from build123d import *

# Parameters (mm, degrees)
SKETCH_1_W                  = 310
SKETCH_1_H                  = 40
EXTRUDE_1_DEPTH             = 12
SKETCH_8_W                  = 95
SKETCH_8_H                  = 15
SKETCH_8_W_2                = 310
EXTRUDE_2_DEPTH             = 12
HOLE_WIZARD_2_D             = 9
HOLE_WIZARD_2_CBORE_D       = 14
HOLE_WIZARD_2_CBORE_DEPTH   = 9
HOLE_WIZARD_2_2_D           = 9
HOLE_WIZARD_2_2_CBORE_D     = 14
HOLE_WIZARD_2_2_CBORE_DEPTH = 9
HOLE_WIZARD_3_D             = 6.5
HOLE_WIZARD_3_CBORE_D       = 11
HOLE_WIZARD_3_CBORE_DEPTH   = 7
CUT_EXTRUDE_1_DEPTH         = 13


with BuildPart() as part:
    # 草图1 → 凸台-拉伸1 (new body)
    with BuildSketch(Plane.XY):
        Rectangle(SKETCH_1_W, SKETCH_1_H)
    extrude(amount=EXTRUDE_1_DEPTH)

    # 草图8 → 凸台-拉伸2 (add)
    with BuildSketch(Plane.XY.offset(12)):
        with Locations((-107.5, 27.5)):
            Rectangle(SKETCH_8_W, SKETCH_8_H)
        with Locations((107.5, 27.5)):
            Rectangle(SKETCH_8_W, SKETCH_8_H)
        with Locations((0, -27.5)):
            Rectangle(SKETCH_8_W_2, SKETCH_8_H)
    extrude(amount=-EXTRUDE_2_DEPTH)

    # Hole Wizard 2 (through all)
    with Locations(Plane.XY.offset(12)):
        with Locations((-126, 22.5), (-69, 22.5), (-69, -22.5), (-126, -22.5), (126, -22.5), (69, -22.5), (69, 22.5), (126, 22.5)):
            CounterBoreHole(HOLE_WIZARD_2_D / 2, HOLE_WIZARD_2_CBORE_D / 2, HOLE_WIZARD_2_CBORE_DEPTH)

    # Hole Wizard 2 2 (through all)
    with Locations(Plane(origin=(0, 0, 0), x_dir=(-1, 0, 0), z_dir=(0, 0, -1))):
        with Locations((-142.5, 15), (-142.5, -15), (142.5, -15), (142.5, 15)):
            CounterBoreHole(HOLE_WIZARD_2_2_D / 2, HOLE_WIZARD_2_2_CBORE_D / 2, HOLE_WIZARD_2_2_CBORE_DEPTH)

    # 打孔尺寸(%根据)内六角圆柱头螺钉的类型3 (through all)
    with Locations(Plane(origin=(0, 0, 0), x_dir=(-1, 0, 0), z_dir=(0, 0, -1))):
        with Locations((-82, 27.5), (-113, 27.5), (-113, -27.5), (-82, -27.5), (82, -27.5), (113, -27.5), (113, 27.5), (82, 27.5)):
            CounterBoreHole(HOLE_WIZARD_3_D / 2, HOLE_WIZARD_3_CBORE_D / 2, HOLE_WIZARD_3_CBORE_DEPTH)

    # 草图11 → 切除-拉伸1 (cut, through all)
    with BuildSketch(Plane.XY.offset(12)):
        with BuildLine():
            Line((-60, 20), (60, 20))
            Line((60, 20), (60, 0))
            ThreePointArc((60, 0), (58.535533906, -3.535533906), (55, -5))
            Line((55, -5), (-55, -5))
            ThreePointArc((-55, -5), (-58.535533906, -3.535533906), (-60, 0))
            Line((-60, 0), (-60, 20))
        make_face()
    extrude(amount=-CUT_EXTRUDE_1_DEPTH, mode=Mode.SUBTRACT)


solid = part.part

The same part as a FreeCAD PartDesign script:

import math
import FreeCAD as App
import Part
import Sketcher
from FreeCAD import Vector
Q = App.Units.Quantity


def add_polygon(sketch, points):
    """Adds a closed chain of lines whose ends are joined by coincident constraints."""
    first, n = sketch.GeometryCount, len(points)
    for a, b in zip(points, points[1:] + points[:1]):
        sketch.addGeometry(Part.LineSegment(App.Vector(*a, 0), App.Vector(*b, 0)), False)
    for i in range(n):
        sketch.addConstraint(Sketcher.Constraint("Coincident", first + i, 2, first + (i + 1) % n, 1))

doc = App.newDocument("Part")
params = doc.addObject("Spreadsheet::Sheet", "Params")
for row, (alias, value) in enumerate([
    ("sketch1_width", "310 mm"),
    ("sketch1_height", "40 mm"),
    ("pad1_length", "12 mm"),
    ("sketch2_width", "95 mm"),
    ("sketch2_width2", "310 mm"),
    ("sketch2_height", "15 mm"),
    ("pad2_length", "12 mm"),
    ("sketch3_diameter", "9 mm"),
    ("hole_diameter", "9 mm"),
    ("hole_cbore_diameter", "14 mm"),
    ("hole_cbore_depth", "9 mm"),
    ("sketch4_diameter", "9 mm"),
    ("hole2_diameter", "9 mm"),
    ("hole2_cbore_diameter", "14 mm"),
    ("hole2_cbore_depth", "9 mm"),
    ("sketch5_diameter", "6.5 mm"),
    ("hole3_diameter", "6.5 mm"),
    ("hole3_cbore_diameter", "11 mm"),
    ("hole3_cbore_depth", "7 mm"),
    ("sketch6_radius", "5 mm"),
    ("sketch6_width", "120 mm"),
    ("sketch6_height", "20 mm"),
], start=1):
    params.set(f"A{row}", alias)
    params.set(f"B{row}", "=" + value)
    params.setAlias(f"B{row}", alias)

body = doc.addObject("PartDesign::Body", "Body")

# Sketch on XY plane
sketch1 = body.newObject("Sketcher::SketchObject", "Sketch")
sketch1.AttachmentSupport = (doc.getObject("XY_Plane"), [""])
sketch1.MapMode = "FlatFace"
add_polygon(sketch1, [(-155, 20), (-155, -20), (155, -20), (155, 20)])  # lines 0-3
sketch1.addConstraint(Sketcher.Constraint("Vertical", 0))
sketch1.addConstraint(Sketcher.Constraint("Horizontal", 1))
sketch1.addConstraint(Sketcher.Constraint("Vertical", 2))
sketch1.addConstraint(Sketcher.Constraint("Horizontal", 3))
sketch1.addConstraint(Sketcher.Constraint("Symmetric", 0, 2, 2, 2, -1, 1))
sketch1.addConstraint(Sketcher.Constraint("DistanceX", 1, 1, 1, 2, Q("310 mm")))
sketch1.addConstraint(Sketcher.Constraint("DistanceY", 0, 2, 0, 1, Q("40 mm")))
sketch1.setExpression("Constraints[9]", "Params.sketch1_width")
sketch1.setExpression("Constraints[10]", "Params.sketch1_height")
pad1 = body.newObject("PartDesign::Pad", "Pad")
pad1.Profile = sketch1
pad1.setExpression("Length", "Params.pad1_length")

# Sketch on XY plane
sketch2 = body.newObject("Sketcher::SketchObject", "Sketch001")
sketch2.AttachmentSupport = (doc.getObject("XY_Plane"), [""])
sketch2.MapMode = "FlatFace"
sketch2.AttachmentOffset = App.Placement(Vector(0, 0, 12), App.Rotation())
add_polygon(sketch2, [(-155, 35), (-155, 20), (-60, 20), (-60, 35)])  # lines 0-3
add_polygon(sketch2, [(60, 35), (60, 20), (155, 20), (155, 35)])  # lines 4-7
add_polygon(sketch2, [(-155, -20), (-155, -35), (155, -35), (155, -20)])  # lines 8-11
sketch2.addConstraint(Sketcher.Constraint("Vertical", 0))
sketch2.addConstraint(Sketcher.Constraint("Horizontal", 1))
sketch2.addConstraint(Sketcher.Constraint("Vertical", 2))
sketch2.addConstraint(Sketcher.Constraint("Horizontal", 3))
sketch2.addConstraint(Sketcher.Constraint("Vertical", 4))
sketch2.addConstraint(Sketcher.Constraint("Horizontal", 5))
sketch2.addConstraint(Sketcher.Constraint("Vertical", 6))
sketch2.addConstraint(Sketcher.Constraint("Horizontal", 7))
sketch2.addConstraint(Sketcher.Constraint("Vertical", 8))
sketch2.addConstraint(Sketcher.Constraint("Horizontal", 9))
sketch2.addConstraint(Sketcher.Constraint("Vertical", 10))
sketch2.addConstraint(Sketcher.Constraint("Horizontal", 11))
sketch2.addConstraint(Sketcher.Constraint("Symmetric", 6, 2, 8, 2, -1, 1))
sketch2.addConstraint(Sketcher.Constraint("Symmetric", 3, 2, 9, 2, -1, 1))
sketch2.addConstraint(Sketcher.Constraint("Symmetric", 1, 2, 4, 2, -2))
sketch2.addConstraint(Sketcher.Constraint("Symmetric", 5, 2, 10, 2, -1))
sketch2.addConstraint(Sketcher.Constraint("DistanceX", 1, 1, 1, 2, Q("95 mm")))
sketch2.addConstraint(Sketcher.Constraint("DistanceX", 9, 1, 9, 2, Q("310 mm")))
sketch2.addConstraint(Sketcher.Constraint("DistanceY", 0, 2, 0, 1, Q("15 mm")))
sketch2.addConstraint(Sketcher.Constraint("DistanceY", -1, 1, 0, 2, Q("20 mm")))
sketch2.setExpression("Constraints[28]", "Params.sketch2_width")
sketch2.setExpression("Constraints[29]", "Params.sketch2_width2")
sketch2.setExpression("Constraints[30]", "Params.sketch2_height")
pad2 = body.newObject("PartDesign::Pad", "Pad001")
pad2.Profile = sketch2
pad2.setExpression("Length", "Params.pad2_length")
pad2.Reversed = True

# Sketch on XY plane
sketch3 = body.newObject("Sketcher::SketchObject", "Sketch002")
sketch3.AttachmentSupport = (doc.getObject("XY_Plane"), [""])
sketch3.MapMode = "FlatFace"
sketch3.AttachmentOffset = App.Placement(Vector(0, 0, 12), App.Rotation())
sketch3.addGeometry(Part.Circle(Vector(-126, 22.5, 0), Vector(0, 0, 1), 4.5), False)
sketch3.addGeometry(Part.Circle(Vector(-69, 22.5, 0), Vector(0, 0, 1), 4.5), False)
sketch3.addGeometry(Part.Circle(Vector(-69, -22.5, 0), Vector(0, 0, 1), 4.5), False)
sketch3.addGeometry(Part.Circle(Vector(-126, -22.5, 0), Vector(0, 0, 1), 4.5), False)
sketch3.addGeometry(Part.Circle(Vector(126, -22.5, 0), Vector(0, 0, 1), 4.5), False)
sketch3.addGeometry(Part.Circle(Vector(69, -22.5, 0), Vector(0, 0, 1), 4.5), False)
sketch3.addGeometry(Part.Circle(Vector(69, 22.5, 0), Vector(0, 0, 1), 4.5), False)
sketch3.addGeometry(Part.Circle(Vector(126, 22.5, 0), Vector(0, 0, 1), 4.5), False)
sketch3.addConstraint(Sketcher.Constraint("Equal", 0, 1))
sketch3.addConstraint(Sketcher.Constraint("Equal", 1, 2))
sketch3.addConstraint(Sketcher.Constraint("Equal", 2, 3))
sketch3.addConstraint(Sketcher.Constraint("Equal", 3, 4))
sketch3.addConstraint(Sketcher.Constraint("Equal", 4, 5))
sketch3.addConstraint(Sketcher.Constraint("Equal", 5, 6))
sketch3.addConstraint(Sketcher.Constraint("Equal", 6, 7))
sketch3.addConstraint(Sketcher.Constraint("Symmetric", 0, 3, 4, 3, -1, 1))
sketch3.addConstraint(Sketcher.Constraint("Symmetric", 1, 3, 5, 3, -1, 1))
sketch3.addConstraint(Sketcher.Constraint("Symmetric", 2, 3, 6, 3, -1, 1))
sketch3.addConstraint(Sketcher.Constraint("Symmetric", 3, 3, 7, 3, -1, 1))
sketch3.addConstraint(Sketcher.Constraint("Symmetric", 3, 3, 4, 3, -2))
sketch3.addConstraint(Sketcher.Constraint("Symmetric", 2, 3, 5, 3, -2))
sketch3.addConstraint(Sketcher.Constraint("Horizontal", 0, 3, 1, 3))
sketch3.addConstraint(Sketcher.Constraint("Diameter", 0, Q("9 mm")))
sketch3.addConstraint(Sketcher.Constraint("DistanceX", 0, 3, -1, 1, Q("126 mm")))
sketch3.addConstraint(Sketcher.Constraint("DistanceX", 1, 3, -1, 1, Q("69 mm")))
sketch3.addConstraint(Sketcher.Constraint("DistanceY", 2, 3, 1, 3, Q("45 mm")))
sketch3.setExpression("Constraints[14]", "Params.sketch3_diameter")
doc.recompute()
hole = body.newObject("PartDesign::Hole", "Hole")
hole.Profile = sketch3
hole.ThreadType = "None"
hole.setExpression("Diameter", "Params.hole_diameter")
hole.DepthType = "ThroughAll"
hole.HoleCutType = "Counterbore"
hole.setExpression("HoleCutDiameter", "Params.hole_cbore_diameter")
hole.setExpression("HoleCutDepth", "Params.hole_cbore_depth")

# Sketch on XY plane
sketch4 = body.newObject("Sketcher::SketchObject", "Sketch003")
sketch4.AttachmentSupport = (doc.getObject("XY_Plane"), [""])
sketch4.MapMode = "FlatFace"
sketch4.addGeometry(Part.Circle(Vector(142.5, 15, 0), Vector(0, 0, 1), 4.5), False)
sketch4.addGeometry(Part.Circle(Vector(142.5, -15, 0), Vector(0, 0, 1), 4.5), False)
sketch4.addGeometry(Part.Circle(Vector(-142.5, -15, 0), Vector(0, 0, 1), 4.5), False)
sketch4.addGeometry(Part.Circle(Vector(-142.5, 15, 0), Vector(0, 0, 1), 4.5), False)
sketch4.addConstraint(Sketcher.Constraint("Equal", 0, 1))
sketch4.addConstraint(Sketcher.Constraint("Equal", 1, 2))
sketch4.addConstraint(Sketcher.Constraint("Equal", 2, 3))
sketch4.addConstraint(Sketcher.Constraint("Symmetric", 0, 3, 2, 3, -1, 1))
sketch4.addConstraint(Sketcher.Constraint("Symmetric", 1, 3, 3, 3, -1, 1))
sketch4.addConstraint(Sketcher.Constraint("Symmetric", 1, 3, 2, 3, -2))
sketch4.addConstraint(Sketcher.Constraint("Diameter", 0, Q("9 mm")))
sketch4.addConstraint(Sketcher.Constraint("DistanceY", -1, 1, 0, 3, Q("15 mm")))
sketch4.addConstraint(Sketcher.Constraint("DistanceX", 2, 3, 1, 3, Q("285 mm")))
sketch4.setExpression("Constraints[6]", "Params.sketch4_diameter")
doc.recompute()
hole2 = body.newObject("PartDesign::Hole", "Hole001")
hole2.Profile = sketch4
hole2.ThreadType = "None"
hole2.setExpression("Diameter", "Params.hole2_diameter")
hole2.DepthType = "ThroughAll"
hole2.HoleCutType = "Counterbore"
hole2.setExpression("HoleCutDiameter", "Params.hole2_cbore_diameter")
hole2.setExpression("HoleCutDepth", "Params.hole2_cbore_depth")
hole2.Reversed = True

# Sketch on XY plane
sketch5 = body.newObject("Sketcher::SketchObject", "Sketch004")
sketch5.AttachmentSupport = (doc.getObject("XY_Plane"), [""])
sketch5.MapMode = "FlatFace"
sketch5.addGeometry(Part.Circle(Vector(82, 27.5, 0), Vector(0, 0, 1), 3.25), False)
sketch5.addGeometry(Part.Circle(Vector(113, 27.5, 0), Vector(0, 0, 1), 3.25), False)
sketch5.addGeometry(Part.Circle(Vector(113, -27.5, 0), Vector(0, 0, 1), 3.25), False)
sketch5.addGeometry(Part.Circle(Vector(82, -27.5, 0), Vector(0, 0, 1), 3.25), False)
sketch5.addGeometry(Part.Circle(Vector(-82, -27.5, 0), Vector(0, 0, 1), 3.25), False)
sketch5.addGeometry(Part.Circle(Vector(-113, -27.5, 0), Vector(0, 0, 1), 3.25), False)
sketch5.addGeometry(Part.Circle(Vector(-113, 27.5, 0), Vector(0, 0, 1), 3.25), False)
sketch5.addGeometry(Part.Circle(Vector(-82, 27.5, 0), Vector(0, 0, 1), 3.25), False)
sketch5.addConstraint(Sketcher.Constraint("Equal", 0, 1))
sketch5.addConstraint(Sketcher.Constraint("Equal", 1, 2))
sketch5.addConstraint(Sketcher.Constraint("Equal", 2, 3))
sketch5.addConstraint(Sketcher.Constraint("Equal", 3, 4))
sketch5.addConstraint(Sketcher.Constraint("Equal", 4, 5))
sketch5.addConstraint(Sketcher.Constraint("Equal", 5, 6))
sketch5.addConstraint(Sketcher.Constraint("Equal", 6, 7))
sketch5.addConstraint(Sketcher.Constraint("Symmetric", 0, 3, 4, 3, -1, 1))
sketch5.addConstraint(Sketcher.Constraint("Symmetric", 1, 3, 5, 3, -1, 1))
sketch5.addConstraint(Sketcher.Constraint("Symmetric", 2, 3, 6, 3, -1, 1))
sketch5.addConstraint(Sketcher.Constraint("Symmetric", 3, 3, 7, 3, -1, 1))
sketch5.addConstraint(Sketcher.Constraint("Symmetric", 3, 3, 4, 3, -2))
sketch5.addConstraint(Sketcher.Constraint("Symmetric", 2, 3, 5, 3, -2))
sketch5.addConstraint(Sketcher.Constraint("Horizontal", 0, 3, 1, 3))
sketch5.addConstraint(Sketcher.Constraint("Diameter", 0, Q("6.5 mm")))
sketch5.addConstraint(Sketcher.Constraint("DistanceX", -1, 1, 0, 3, Q("82 mm")))
sketch5.addConstraint(Sketcher.Constraint("DistanceX", -1, 1, 1, 3, Q("113 mm")))
sketch5.addConstraint(Sketcher.Constraint("DistanceY", 2, 3, 1, 3, Q("55 mm")))
sketch5.setExpression("Constraints[14]", "Params.sketch5_diameter")
doc.recompute()
hole3 = body.newObject("PartDesign::Hole", "Hole002")
hole3.Profile = sketch5
hole3.ThreadType = "None"
hole3.setExpression("Diameter", "Params.hole3_diameter")
hole3.DepthType = "ThroughAll"
hole3.HoleCutType = "Counterbore"
hole3.setExpression("HoleCutDiameter", "Params.hole3_cbore_diameter")
hole3.setExpression("HoleCutDepth", "Params.hole3_cbore_depth")
hole3.Reversed = True

# Sketch on XY plane
sketch6 = body.newObject("Sketcher::SketchObject", "Sketch005")
sketch6.AttachmentSupport = (doc.getObject("XY_Plane"), [""])
sketch6.MapMode = "FlatFace"
sketch6.AttachmentOffset = App.Placement(Vector(0, 0, 12), App.Rotation())
sketch6.addGeometry(Part.LineSegment(Vector(60, 20, 0), Vector(-60, 20, 0)), False)
sketch6.addGeometry(Part.LineSegment(Vector(-60, 20, 0), Vector(-60, 0, 0)), False)
sketch6.addGeometry(Part.ArcOfCircle(Part.Circle(Vector(-55, 0, 0), Vector(0, 0, 1), 5), math.radians(180), math.radians(270)), False)
sketch6.addGeometry(Part.LineSegment(Vector(-55, -5, 0), Vector(55, -5, 0)), False)
sketch6.addGeometry(Part.ArcOfCircle(Part.Circle(Vector(55, 0, 0), Vector(0, 0, 1), 5), math.radians(-90), math.radians(0)), False)
sketch6.addGeometry(Part.LineSegment(Vector(60, 0, 0), Vector(60, 20, 0)), False)
sketch6.addConstraint(Sketcher.Constraint("Coincident", 0, 2, 1, 1))
sketch6.addConstraint(Sketcher.Constraint("Tangent", 1, 2, 2, 1))
sketch6.addConstraint(Sketcher.Constraint("Tangent", 2, 2, 3, 1))
sketch6.addConstraint(Sketcher.Constraint("Tangent", 3, 2, 4, 1))
sketch6.addConstraint(Sketcher.Constraint("Tangent", 4, 2, 5, 1))
sketch6.addConstraint(Sketcher.Constraint("Coincident", 5, 2, 0, 1))
sketch6.addConstraint(Sketcher.Constraint("Horizontal", 0))
sketch6.addConstraint(Sketcher.Constraint("Vertical", 1))
sketch6.addConstraint(Sketcher.Constraint("Horizontal", 3))
sketch6.addConstraint(Sketcher.Constraint("Vertical", 5))
sketch6.addConstraint(Sketcher.Constraint("Equal", 2, 4))
sketch6.addConstraint(Sketcher.Constraint("Symmetric", 2, 3, 4, 3, -1, 1))
sketch6.addConstraint(Sketcher.Constraint("Radius", 2, Q("5 mm")))
sketch6.addConstraint(Sketcher.Constraint("DistanceX", 0, 2, 0, 1, Q("120 mm")))
sketch6.addConstraint(Sketcher.Constraint("DistanceY", 1, 2, 1, 1, Q("20 mm")))
sketch6.setExpression("Constraints[12]", "Params.sketch6_radius")
sketch6.setExpression("Constraints[13]", "Params.sketch6_width")
sketch6.setExpression("Constraints[14]", "Params.sketch6_height")
pocket1 = body.newObject("PartDesign::Pocket", "Pocket")
pocket1.Profile = sketch6
pocket1.Type = "ThroughAll"

doc.recompute()
